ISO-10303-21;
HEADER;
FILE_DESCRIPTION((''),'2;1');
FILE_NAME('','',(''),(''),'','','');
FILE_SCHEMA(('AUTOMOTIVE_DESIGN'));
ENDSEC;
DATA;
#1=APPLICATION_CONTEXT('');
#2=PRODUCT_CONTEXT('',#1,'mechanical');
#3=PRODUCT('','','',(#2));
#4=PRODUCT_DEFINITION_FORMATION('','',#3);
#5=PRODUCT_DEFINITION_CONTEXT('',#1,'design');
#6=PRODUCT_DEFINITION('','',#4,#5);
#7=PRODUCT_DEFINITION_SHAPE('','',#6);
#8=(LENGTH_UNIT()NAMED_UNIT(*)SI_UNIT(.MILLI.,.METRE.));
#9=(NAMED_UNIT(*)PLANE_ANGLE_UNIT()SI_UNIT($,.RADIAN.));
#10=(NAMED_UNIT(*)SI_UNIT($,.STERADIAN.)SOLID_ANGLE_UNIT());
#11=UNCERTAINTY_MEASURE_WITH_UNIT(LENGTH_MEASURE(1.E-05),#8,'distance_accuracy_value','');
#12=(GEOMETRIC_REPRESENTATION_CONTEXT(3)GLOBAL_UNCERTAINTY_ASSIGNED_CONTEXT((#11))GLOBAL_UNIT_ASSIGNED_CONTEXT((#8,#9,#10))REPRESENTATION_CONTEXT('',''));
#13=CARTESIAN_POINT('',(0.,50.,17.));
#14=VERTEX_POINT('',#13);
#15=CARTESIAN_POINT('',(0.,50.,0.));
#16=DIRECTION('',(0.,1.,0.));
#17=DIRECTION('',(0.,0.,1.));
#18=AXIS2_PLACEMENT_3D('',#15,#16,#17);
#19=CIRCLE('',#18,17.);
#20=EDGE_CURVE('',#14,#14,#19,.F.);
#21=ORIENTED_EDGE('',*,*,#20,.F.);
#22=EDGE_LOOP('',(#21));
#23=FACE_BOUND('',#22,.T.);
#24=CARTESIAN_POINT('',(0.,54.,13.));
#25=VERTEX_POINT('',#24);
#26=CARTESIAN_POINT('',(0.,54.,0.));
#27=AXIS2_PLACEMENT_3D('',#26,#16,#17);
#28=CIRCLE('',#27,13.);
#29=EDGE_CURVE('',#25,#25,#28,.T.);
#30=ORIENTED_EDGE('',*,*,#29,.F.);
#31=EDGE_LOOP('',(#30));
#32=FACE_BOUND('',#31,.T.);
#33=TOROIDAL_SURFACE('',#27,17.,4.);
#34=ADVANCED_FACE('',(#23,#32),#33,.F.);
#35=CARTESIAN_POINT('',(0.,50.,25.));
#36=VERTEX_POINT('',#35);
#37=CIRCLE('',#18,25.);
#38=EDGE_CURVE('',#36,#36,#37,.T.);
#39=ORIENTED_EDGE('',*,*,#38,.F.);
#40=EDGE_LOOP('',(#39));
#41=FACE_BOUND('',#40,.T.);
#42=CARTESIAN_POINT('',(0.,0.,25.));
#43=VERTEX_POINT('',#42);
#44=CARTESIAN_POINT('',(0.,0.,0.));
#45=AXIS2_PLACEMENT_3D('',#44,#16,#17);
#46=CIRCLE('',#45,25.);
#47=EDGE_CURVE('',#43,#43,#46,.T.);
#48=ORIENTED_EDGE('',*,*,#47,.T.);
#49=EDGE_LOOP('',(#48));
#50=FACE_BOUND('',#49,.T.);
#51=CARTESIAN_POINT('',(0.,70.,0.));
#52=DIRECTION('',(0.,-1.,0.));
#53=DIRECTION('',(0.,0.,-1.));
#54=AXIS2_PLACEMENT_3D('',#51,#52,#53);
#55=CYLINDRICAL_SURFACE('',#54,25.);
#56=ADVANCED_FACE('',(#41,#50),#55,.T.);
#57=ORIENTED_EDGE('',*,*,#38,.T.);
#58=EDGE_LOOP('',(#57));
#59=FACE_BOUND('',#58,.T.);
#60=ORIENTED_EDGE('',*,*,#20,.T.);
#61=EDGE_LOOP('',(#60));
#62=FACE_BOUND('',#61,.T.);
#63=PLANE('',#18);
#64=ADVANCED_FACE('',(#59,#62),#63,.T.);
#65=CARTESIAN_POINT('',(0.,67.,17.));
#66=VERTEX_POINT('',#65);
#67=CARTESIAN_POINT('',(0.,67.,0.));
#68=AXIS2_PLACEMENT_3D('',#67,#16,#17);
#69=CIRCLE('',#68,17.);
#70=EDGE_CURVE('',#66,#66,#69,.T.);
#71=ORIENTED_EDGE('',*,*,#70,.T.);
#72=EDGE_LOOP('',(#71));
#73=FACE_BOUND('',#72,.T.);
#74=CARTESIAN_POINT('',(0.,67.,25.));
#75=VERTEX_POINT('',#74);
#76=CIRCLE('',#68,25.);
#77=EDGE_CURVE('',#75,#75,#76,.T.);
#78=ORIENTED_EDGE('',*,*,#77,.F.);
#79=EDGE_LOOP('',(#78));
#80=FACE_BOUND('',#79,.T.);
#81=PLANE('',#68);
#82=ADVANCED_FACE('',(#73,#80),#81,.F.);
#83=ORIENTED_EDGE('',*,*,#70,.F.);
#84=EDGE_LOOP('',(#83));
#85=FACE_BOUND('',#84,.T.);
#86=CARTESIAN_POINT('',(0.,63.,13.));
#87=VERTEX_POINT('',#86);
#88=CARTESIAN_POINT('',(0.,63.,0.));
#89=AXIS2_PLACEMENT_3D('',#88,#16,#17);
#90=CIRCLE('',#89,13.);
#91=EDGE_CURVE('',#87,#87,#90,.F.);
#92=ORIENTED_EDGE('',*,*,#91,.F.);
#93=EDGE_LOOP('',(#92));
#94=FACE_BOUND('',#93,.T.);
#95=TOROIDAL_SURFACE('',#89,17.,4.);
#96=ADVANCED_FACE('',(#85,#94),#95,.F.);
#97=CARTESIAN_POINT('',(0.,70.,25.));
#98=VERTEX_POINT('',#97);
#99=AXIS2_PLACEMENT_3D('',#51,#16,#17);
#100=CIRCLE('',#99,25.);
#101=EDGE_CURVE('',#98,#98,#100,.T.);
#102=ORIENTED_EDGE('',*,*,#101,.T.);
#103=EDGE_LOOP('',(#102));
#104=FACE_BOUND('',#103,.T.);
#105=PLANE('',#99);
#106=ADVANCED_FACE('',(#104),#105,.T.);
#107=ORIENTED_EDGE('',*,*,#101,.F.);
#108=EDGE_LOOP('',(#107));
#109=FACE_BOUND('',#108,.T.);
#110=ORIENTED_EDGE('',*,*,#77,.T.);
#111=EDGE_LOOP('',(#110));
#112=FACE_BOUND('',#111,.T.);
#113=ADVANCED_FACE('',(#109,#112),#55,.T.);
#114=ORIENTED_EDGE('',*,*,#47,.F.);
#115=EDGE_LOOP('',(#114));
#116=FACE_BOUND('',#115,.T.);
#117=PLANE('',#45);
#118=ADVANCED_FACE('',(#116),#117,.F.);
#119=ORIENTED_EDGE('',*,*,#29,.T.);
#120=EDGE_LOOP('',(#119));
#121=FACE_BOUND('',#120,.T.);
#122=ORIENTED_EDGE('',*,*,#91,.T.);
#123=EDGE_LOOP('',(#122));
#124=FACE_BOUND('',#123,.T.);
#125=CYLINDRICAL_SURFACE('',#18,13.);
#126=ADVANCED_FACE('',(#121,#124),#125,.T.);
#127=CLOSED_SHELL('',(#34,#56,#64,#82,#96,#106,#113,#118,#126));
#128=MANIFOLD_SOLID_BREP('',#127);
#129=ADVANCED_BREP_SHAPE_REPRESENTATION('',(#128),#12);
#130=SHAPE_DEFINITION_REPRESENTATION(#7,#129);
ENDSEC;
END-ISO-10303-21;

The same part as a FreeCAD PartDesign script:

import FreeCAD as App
import Part
import Sketcher


def edges_at(feature, points):
    """Names of the edges that pass closest to the given points."""
    edges = feature.Shape.Edges
    near = lambda p: min(range(len(edges)), key=lambda i: edges[i].distToShape(Part.Vertex(*p))[0])
    return sorted({f"Edge{near(p) + 1}" for p in points})


def add_polygon(sketch, points):
    """Adds a closed chain of lines whose ends are joined by coincident constraints."""
    first, n = sketch.GeometryCount, len(points)
    for a, b in zip(points, points[1:] + points[:1]):
        sketch.addGeometry(Part.LineSegment(App.Vector(*a, 0), App.Vector(*b, 0)), False)
    for i in range(n):
        sketch.addConstraint(Sketcher.Constraint("Coincident", first + i, 2, first + (i + 1) % n, 1))

doc = App.newDocument("Part")
params = doc.addObject("Spreadsheet::Sheet", "Params")
for row, (alias, value) in enumerate([
    ("sketch1_diameter", "50 mm"),
    ("pad1_length", "70 mm"),
    ("sketch2_diameter", "26 mm"),
    ("sketch2_width", "71.9 mm"),
    ("pocket1_length", "17 mm"),
    ("fillet_radius", "4 mm"),
], start=1):
    params.set(f"A{row}", alias)
    params.set(f"B{row}", "=" + value)
    params.setAlias(f"B{row}", alias)

body = doc.addObject("PartDesign::Body", "Body")

sketch1 = body.newObject("Sketcher::SketchObject", "Sketch")
sketch1.AttachmentSupport = (doc.getObject("XZ_Plane"), [""])
sketch1.MapMode = "FlatFace"
sketch1.addGeometry(Part.Circle(App.Vector(0, 0, 0), App.Vector(0, 0, 1), 25), False)
sketch1.addConstraint([
    Sketcher.Constraint("Coincident", 0, 3, -1, 1),
    Sketcher.Constraint("Diameter", 0, 50.0),
])
sketch1.setExpression("Constraints[1]", "Params.sketch1_diameter")
pad1 = body.newObject("PartDesign::Pad", "Pad")
pad1.Profile = sketch1
pad1.setExpression("Length", "Params.pad1_length")
pad1.Reversed = True

sketch2 = body.newObject("Sketcher::SketchObject", "Sketch001")
sketch2.AttachmentSupport = (doc.getObject("XZ_Plane"), [""])
sketch2.MapMode = "FlatFace"
sketch2.AttachmentOffset = App.Placement(App.Vector(0, 0, -67), App.Rotation())
add_polygon(sketch2, [(-36, -36), (-36, 36), (36, 36), (36, -36)])
sketch2.addGeometry(Part.Circle(App.Vector(0, 0, 0), App.Vector(0, 0, 1), 13), False)
sketch2.addConstraint([
    Sketcher.Constraint("Vertical", 0),
    Sketcher.Constraint("Horizontal", 1),
    Sketcher.Constraint("Vertical", 2),
    Sketcher.Constraint("Horizontal", 3),
    Sketcher.Constraint("Coincident", 4, 3, -1, 1),
    Sketcher.Constraint("Symmetric", 0, 2, 2, 2, -1, 1),
    Sketcher.Constraint("Equal", 3, 0),
    Sketcher.Constraint("Diameter", 4, 26.0),
    Sketcher.Constraint("DistanceX", 1, 1, 1, 2, 71.9),
])
sketch2.setExpression("Constraints[11]", "Params.sketch2_diameter")
sketch2.setExpression("Constraints[12]", "Params.sketch2_width")
pocket1 = body.newObject("PartDesign::Pocket", "Pocket")
pocket1.Profile = sketch2
pocket1.setExpression("Length", "Params.pocket1_length")
pocket1.Reversed = True
doc.recompute()

fillet = body.newObject("PartDesign::Fillet", "Fillet")
fillet.Base = (pocket1, edges_at(pocket1, [(0, 67, -13), (0, 50, -13)]))
fillet.setExpression("Radius", "Params.fillet_radius")

doc.recompute()
